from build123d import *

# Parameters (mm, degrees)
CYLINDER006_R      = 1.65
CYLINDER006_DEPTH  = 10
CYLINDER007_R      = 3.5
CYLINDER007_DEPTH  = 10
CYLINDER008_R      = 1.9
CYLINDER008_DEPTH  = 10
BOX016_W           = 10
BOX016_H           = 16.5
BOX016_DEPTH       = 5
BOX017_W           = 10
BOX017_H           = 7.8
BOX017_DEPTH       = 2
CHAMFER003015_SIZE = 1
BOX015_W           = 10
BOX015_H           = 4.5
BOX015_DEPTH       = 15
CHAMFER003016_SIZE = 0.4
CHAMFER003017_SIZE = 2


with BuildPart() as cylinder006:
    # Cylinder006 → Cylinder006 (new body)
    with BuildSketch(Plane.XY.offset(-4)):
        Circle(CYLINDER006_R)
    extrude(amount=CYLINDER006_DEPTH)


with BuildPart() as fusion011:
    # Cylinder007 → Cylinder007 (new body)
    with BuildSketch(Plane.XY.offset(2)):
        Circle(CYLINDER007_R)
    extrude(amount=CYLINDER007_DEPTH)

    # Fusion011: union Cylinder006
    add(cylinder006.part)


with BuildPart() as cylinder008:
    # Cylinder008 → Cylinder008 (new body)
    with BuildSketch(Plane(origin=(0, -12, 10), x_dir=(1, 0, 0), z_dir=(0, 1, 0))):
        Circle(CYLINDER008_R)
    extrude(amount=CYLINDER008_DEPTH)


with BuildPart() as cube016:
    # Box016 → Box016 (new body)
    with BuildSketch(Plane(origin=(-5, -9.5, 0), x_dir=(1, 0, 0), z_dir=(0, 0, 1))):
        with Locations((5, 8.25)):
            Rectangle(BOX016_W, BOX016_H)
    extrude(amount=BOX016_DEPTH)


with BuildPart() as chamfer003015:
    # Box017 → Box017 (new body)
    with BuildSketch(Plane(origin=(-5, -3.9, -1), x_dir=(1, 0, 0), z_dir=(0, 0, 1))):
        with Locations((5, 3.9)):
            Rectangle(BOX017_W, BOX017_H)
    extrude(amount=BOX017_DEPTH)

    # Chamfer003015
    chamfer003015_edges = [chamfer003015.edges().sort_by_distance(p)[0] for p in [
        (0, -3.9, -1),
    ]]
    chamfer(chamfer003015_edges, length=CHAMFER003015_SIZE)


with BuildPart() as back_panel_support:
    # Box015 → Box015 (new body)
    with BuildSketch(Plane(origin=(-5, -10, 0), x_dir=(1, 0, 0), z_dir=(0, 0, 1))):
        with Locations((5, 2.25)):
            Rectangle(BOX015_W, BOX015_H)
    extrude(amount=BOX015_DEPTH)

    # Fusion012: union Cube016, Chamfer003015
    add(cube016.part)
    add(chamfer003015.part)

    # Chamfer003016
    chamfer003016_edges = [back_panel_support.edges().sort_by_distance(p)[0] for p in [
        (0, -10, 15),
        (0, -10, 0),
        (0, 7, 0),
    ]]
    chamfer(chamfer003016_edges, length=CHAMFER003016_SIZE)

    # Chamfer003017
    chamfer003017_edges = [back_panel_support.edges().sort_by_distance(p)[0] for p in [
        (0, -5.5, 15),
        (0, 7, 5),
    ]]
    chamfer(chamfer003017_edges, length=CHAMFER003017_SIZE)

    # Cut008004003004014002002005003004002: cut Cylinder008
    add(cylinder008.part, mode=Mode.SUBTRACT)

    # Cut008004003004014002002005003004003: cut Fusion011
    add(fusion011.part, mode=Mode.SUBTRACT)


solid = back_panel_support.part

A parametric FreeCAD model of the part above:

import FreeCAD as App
import Part
import Sketcher

V = App.Vector
Q = App.Units.Quantity


def edges_at(feature, points):
    """Names of the edges that pass closest to the given points."""
    edges = feature.Shape.Edges
    near = lambda p: min(range(len(edges)), key=lambda i: edges[i].distToShape(Part.Vertex(*p))[0])
    return sorted({f"Edge{near(p) + 1}" for p in points})

doc = App.newDocument("Part")
body = doc.addObject("PartDesign::Body", "Body")

# Sketch on XY plane
sketch1 = doc.addObject("Sketcher::SketchObject", "Sketch")
body.addObject(sketch1)
sketch1.AttachmentSupport = (doc.XY_Plane, [""])
sketch1.MapMode = "FlatFace"
sketch1.AttachmentOffset = App.Placement(V(0, 0, -4), App.Rotation())
sketch1.addGeometry(Part.Circle(V(0, 0, 0), V(0, 0, 1), 1.6), False)
sketch1.addConstraint([
    Sketcher.Constraint("Coincident", 0, 3, -1, 1),
    Sketcher.Constraint("Diameter", 0, Q("3.3 mm")),
])
pad1 = doc.addObject("PartDesign::Pad", "Pad")
body.addObject(pad1)
pad1.Profile = sketch1
pad1.Length = 10
body2 = doc.addObject("PartDesign::Body", "Body001")

# Sketch on XY plane
sketch2 = doc.addObject("Sketcher::SketchObject", "Sketch001")
body2.addObject(sketch2)
sketch2.AttachmentSupport = (doc.getObject("XY_Plane001"), [""])
sketch2.MapMode = "FlatFace"
sketch2.AttachmentOffset = App.Placement(V(0, 0, 2), App.Rotation())
sketch2.addGeometry(Part.Circle(V(0, 0, 0), V(0, 0, 1), 3.5), False)
sketch2.addConstraint([
    Sketcher.Constraint("Coincident", 0, 3, -1, 1),
    Sketcher.Constraint("Diameter", 0, Q("7 mm")),
])
pad2 = doc.addObject("PartDesign::Pad", "Pad001")
body2.addObject(pad2)
pad2.Profile = sketch2
pad2.Length = 10
doc.recompute()

boolean = doc.addObject("PartDesign::Boolean", "Boolean")
body2.addObject(boolean)
boolean.Type = "Fuse"
boolean.addObjects([body])
body3 = doc.addObject("PartDesign::Body", "Body002")

# Sketch on XZ plane
sketch3 = doc.addObject("Sketcher::SketchObject", "Sketch002")
body3.addObject(sketch3)
sketch3.AttachmentSupport = (doc.getObject("XZ_Plane002"), [""])
sketch3.MapMode = "FlatFace"
sketch3.AttachmentOffset = App.Placement(V(0, 0, 12), App.Rotation())
sketch3.addGeometry(Part.Circle(V(0, 10, 0), V(0, 0, 1), 1.9), False)
sketch3.addConstraint([
    Sketcher.Constraint("PointOnObject", 0, 3, -2),
    Sketcher.Constraint("Diameter", 0, Q("3.8 mm")),
    Sketcher.Constraint("DistanceY", -1, 1, 0, 3, Q("10 mm")),
])
pad3 = doc.addObject("PartDesign::Pad", "Pad002")
body3.addObject(pad3)
pad3.Profile = sketch3
pad3.Length = 10
pad3.Reversed = True
body4 = doc.addObject("PartDesign::Body", "Body003")

# Sketch on XY plane
sketch4 = doc.addObject("Sketcher::SketchObject", "Sketch003")
body4.addObject(sketch4)
sketch4.AttachmentSupport = (doc.getObject("XY_Plane003"), [""])
sketch4.MapMode = "FlatFace"
sketch4.addGeometry([
    Part.LineSegment(V(-5, 7, 0), V(-5, -10, 0)),
    Part.LineSegment(V(-5, -10, 0), V(5, -10, 0)),
    Part.LineSegment(V(5, -10, 0), V(5, 7, 0)),
    Part.LineSegment(V(5, 7, 0), V(-5, 7, 0)),
], False)
sketch4.addConstraint([
    Sketcher.Constraint("Coincident", 0, 2, 1, 1),
    Sketcher.Constraint("Coincident", 1, 2, 2, 1),
    Sketcher.Constraint("Coincident", 2, 2, 3, 1),
    Sketcher.Constraint("Coincident", 3, 2, 0, 1),
    Sketcher.Constraint("Vertical", 0),
    Sketcher.Constraint("Horizontal", 1),
    Sketcher.Constraint("Vertical", 2),
    Sketcher.Constraint("Horizontal", 3),
    Sketcher.Constraint("DistanceX", 1, 1, 1, 2, Q("10 mm")),
    Sketcher.Constraint("DistanceY", 0, 2, 0, 1, Q("16.5 mm")),
    Sketcher.Constraint("DistanceX", 0, 2, -1, 1, Q("5 mm")),
    Sketcher.Constraint("DistanceY", -1, 1, 2, 2, Q("7 mm")),
])
pad4 = doc.addObject("PartDesign::Pad", "Pad003")
body4.addObject(pad4)
pad4.Profile = sketch4
pad4.Length = 5
body5 = doc.addObject("PartDesign::Body", "Body004")

# Sketch on XY plane
sketch5 = doc.addObject("Sketcher::SketchObject", "Sketch004")
body5.addObject(sketch5)
sketch5.AttachmentSupport = (doc.getObject("XY_Plane004"), [""])
sketch5.MapMode = "FlatFace"
sketch5.AttachmentOffset = App.Placement(V(0, 0, -1), App.Rotation())
sketch5.addGeometry([
    Part.LineSegment(V(-5, 4, 0), V(-5, -4, 0)),
    Part.LineSegment(V(-5, -4, 0), V(5, -4, 0)),
    Part.LineSegment(V(5, -4, 0), V(5, 4, 0)),
    Part.LineSegment(V(5, 4, 0), V(-5, 4, 0)),
], False)
sketch5.addConstraint([
    Sketcher.Constraint("Coincident", 0, 2, 1, 1),
    Sketcher.Constraint("Coincident", 1, 2, 2, 1),
    Sketcher.Constraint("Coincident", 2, 2, 3, 1),
    Sketcher.Constraint("Coincident", 3, 2, 0, 1),
    Sketcher.Constraint("Vertical", 0),
    Sketcher.Constraint("Horizontal", 1),
    Sketcher.Constraint("Vertical", 2),
    Sketcher.Constraint("Horizontal", 3),
    Sketcher.Constraint("Symmetric", 0, 2, 2, 2, -1, 1),
    Sketcher.Constraint("DistanceX", 1, 1, 1, 2, Q("10 mm")),
    Sketcher.Constraint("DistanceY", 0, 2, 0, 1, Q("7.8 mm")),
])
pad5 = doc.addObject("PartDesign::Pad", "Pad004")
body5.addObject(pad5)
pad5.Profile = sketch5
pad5.Length = 2
doc.recompute()

chamfer = doc.addObject("PartDesign::Chamfer", "Chamfer")
body5.addObject(chamfer)
chamfer.Base = (pad5, edges_at(pad5, [(0, -3.9, -1)]))
chamfer.Size = 1
body6 = doc.addObject("PartDesign::Body", "Body005")

# Sketch on XY plane
sketch6 = doc.addObject("Sketcher::SketchObject", "Sketch005")
body6.addObject(sketch6)
sketch6.AttachmentSupport = (doc.getObject("XY_Plane005"), [""])
sketch6.MapMode = "FlatFace"
sketch6.addGeometry([
    Part.LineSegment(V(-5, -5.5, 0), V(-5, -10, 0)),
    Part.LineSegment(V(-5, -10, 0), V(5, -10, 0)),
    Part.LineSegment(V(5, -10, 0), V(5, -5.5, 0)),
    Part.LineSegment(V(5, -5.5, 0), V(-5, -5.5, 0)),
], False)
sketch6.addConstraint([
    Sketcher.Constraint("Coincident", 0, 2, 1, 1),
    Sketcher.Constraint("Coincident", 1, 2, 2, 1),
    Sketcher.Constraint("Coincident", 2, 2, 3, 1),
    Sketcher.Constraint("Coincident", 3, 2, 0, 1),
    Sketcher.Constraint("Vertical", 0),
    Sketcher.Constraint("Horizontal", 1),
    Sketcher.Constraint("Vertical", 2),
    Sketcher.Constraint("Horizontal", 3),
    Sketcher.Constraint("DistanceX", 1, 1, 1, 2, Q("10 mm")),
    Sketcher.Constraint("DistanceY", 0, 2, 0, 1, Q("4.5 mm")),
    Sketcher.Constraint("DistanceX", 0, 2, -1, 1, Q("5 mm")),
    Sketcher.Constraint("DistanceY", 0, 2, -1, 1, Q("10 mm")),
])
pad6 = doc.addObject("PartDesign::Pad", "Pad005")
body6.addObject(pad6)
pad6.Profile = sketch6
pad6.Length = 15
doc.recompute()

boolean2 = doc.addObject("PartDesign::Boolean", "Boolean001")
body6.addObject(boolean2)
boolean2.Type = "Fuse"
boolean2.addObjects([body4])
doc.recompute()

boolean3 = doc.addObject("PartDesign::Boolean", "Boolean002")
body6.addObject(boolean3)
boolean3.Type = "Fuse"
boolean3.addObjects([body5])
doc.recompute()

chamfer2 = doc.addObject("PartDesign::Chamfer", "Chamfer001")
body6.addObject(chamfer2)
chamfer2.Base = (boolean3, edges_at(boolean3, [(0, -10, 15), (0, -10, 0), (0, 7, 0)]))
chamfer2.Size = 0.4
doc.recompute()

chamfer3 = doc.addObject("PartDesign::Chamfer", "Chamfer002")
body6.addObject(chamfer3)
chamfer3.Base = (chamfer2, edges_at(chamfer2, [(0, -5.5, 15), (0, 7, 5)]))
chamfer3.Size = 2
doc.recompute()

boolean4 = doc.addObject("PartDesign::Boolean", "Boolean003")
body6.addObject(boolean4)
boolean4.Type = "Cut"
boolean4.addObjects([body3])
doc.recompute()

boolean5 = doc.addObject("PartDesign::Boolean", "Boolean004")
body6.addObject(boolean5)
boolean5.Type = "Cut"
boolean5.addObjects([body2])

doc.recompute()
